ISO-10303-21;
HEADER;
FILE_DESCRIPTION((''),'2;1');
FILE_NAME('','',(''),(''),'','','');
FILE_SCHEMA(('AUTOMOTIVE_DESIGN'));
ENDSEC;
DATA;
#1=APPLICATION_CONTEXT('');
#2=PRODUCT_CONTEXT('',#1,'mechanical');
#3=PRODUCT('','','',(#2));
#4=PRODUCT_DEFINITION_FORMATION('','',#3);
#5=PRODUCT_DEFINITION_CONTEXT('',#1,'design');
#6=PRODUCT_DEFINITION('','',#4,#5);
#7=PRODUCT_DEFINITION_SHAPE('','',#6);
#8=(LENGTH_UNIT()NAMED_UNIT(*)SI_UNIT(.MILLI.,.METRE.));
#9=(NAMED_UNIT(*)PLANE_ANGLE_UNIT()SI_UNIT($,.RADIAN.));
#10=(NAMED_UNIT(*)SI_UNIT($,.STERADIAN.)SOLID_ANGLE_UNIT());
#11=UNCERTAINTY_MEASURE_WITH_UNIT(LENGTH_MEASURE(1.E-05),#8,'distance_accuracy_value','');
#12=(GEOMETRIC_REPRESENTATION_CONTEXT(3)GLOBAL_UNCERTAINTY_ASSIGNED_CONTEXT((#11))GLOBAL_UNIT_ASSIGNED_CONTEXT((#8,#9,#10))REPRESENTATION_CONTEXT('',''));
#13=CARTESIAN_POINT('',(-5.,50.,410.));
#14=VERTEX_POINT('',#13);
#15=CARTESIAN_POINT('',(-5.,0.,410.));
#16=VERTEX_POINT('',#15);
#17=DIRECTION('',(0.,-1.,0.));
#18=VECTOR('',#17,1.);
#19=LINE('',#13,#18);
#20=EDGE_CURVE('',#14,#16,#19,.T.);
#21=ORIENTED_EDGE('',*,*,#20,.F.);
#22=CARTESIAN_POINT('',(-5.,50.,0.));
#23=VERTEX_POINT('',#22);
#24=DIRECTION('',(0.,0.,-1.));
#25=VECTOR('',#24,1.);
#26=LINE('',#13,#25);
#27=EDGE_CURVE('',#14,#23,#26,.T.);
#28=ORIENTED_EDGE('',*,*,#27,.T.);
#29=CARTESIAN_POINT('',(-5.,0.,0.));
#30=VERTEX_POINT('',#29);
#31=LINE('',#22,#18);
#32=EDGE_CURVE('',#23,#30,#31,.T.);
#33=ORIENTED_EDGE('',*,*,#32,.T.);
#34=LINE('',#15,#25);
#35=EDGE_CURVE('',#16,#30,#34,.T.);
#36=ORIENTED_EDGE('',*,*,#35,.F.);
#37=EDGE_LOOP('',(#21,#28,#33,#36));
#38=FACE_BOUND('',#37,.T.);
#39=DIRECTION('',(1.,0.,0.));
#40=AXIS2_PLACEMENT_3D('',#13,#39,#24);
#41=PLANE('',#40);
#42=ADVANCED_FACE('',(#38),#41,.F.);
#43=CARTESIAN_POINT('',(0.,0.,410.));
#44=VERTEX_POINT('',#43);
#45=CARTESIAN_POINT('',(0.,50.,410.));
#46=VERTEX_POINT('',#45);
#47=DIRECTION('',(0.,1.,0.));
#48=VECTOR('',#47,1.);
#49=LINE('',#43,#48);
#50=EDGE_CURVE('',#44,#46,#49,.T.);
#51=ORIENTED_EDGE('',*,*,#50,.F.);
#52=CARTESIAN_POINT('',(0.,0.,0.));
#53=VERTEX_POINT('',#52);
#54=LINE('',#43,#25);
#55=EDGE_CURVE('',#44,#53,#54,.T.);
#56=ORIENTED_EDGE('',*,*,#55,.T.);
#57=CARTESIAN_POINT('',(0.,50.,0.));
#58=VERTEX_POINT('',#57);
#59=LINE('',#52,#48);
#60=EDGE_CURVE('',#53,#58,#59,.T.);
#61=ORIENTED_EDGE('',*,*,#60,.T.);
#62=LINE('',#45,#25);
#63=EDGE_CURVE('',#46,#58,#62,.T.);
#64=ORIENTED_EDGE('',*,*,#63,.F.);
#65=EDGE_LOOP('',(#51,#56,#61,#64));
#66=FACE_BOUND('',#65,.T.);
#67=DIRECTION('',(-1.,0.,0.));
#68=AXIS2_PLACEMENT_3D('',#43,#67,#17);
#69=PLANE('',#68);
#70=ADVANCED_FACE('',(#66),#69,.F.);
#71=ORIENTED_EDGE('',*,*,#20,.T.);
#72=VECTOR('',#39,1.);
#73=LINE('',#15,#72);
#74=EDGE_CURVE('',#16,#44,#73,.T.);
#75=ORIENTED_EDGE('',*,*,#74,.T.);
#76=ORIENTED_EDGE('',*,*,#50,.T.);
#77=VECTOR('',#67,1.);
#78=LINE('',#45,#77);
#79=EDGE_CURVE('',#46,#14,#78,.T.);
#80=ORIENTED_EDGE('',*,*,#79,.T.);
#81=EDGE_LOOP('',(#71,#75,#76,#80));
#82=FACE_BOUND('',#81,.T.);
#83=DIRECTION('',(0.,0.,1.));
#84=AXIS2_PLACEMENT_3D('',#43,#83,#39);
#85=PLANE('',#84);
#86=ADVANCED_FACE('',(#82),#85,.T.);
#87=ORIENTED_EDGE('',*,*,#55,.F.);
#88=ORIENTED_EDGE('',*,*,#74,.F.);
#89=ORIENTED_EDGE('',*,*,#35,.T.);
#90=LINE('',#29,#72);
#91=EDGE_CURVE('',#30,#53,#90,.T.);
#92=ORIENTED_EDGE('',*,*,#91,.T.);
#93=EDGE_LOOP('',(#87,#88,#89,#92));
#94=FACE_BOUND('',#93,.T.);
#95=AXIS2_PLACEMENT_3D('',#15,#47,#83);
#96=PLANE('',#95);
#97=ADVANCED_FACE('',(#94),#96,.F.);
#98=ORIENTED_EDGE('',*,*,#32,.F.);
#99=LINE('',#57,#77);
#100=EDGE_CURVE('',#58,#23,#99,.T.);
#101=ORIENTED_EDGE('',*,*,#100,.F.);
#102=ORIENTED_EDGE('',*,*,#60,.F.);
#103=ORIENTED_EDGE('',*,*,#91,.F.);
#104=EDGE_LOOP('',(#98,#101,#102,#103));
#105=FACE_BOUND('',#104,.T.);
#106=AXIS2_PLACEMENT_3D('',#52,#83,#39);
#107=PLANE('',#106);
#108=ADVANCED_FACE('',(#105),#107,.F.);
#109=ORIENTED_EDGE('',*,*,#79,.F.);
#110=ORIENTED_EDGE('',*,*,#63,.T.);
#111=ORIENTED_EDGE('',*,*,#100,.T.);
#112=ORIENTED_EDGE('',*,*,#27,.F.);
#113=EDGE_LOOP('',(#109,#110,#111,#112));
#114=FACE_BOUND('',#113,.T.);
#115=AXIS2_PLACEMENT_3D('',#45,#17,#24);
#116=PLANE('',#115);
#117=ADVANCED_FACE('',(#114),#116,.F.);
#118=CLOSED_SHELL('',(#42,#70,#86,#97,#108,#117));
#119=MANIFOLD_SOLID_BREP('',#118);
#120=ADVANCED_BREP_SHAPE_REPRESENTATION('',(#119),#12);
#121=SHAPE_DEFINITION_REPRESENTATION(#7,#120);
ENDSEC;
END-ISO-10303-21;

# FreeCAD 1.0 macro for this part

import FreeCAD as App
import Part
import Sketcher
from FreeCAD import Vector

doc = App.newDocument("Part")
body = doc.addObject("PartDesign::Body", "Body")

# Sketch on XY plane
sketch1 = body.newObject("Sketcher::SketchObject", "Sketch")
sketch1.AttachmentSupport = (doc.getObject("XY_Plane"), [""])
sketch1.MapMode = "FlatFace"
sketch1.addGeometry([
    Part.LineSegment(Vector(-5, 50, 0), Vector(-5, 0, 0)),
    Part.LineSegment(Vector(-5, 0, 0), Vector(0, 0, 0)),
    Part.LineSegment(Vector(0, 0, 0), Vector(0, 50, 0)),
    Part.LineSegment(Vector(0, 50, 0), Vector(-5, 50, 0)),
], False)
sketch1.addConstraint([
    Sketcher.Constraint("Coincident", 0, 2, 1, 1),
    Sketcher.Constraint("Coincident", 1, 2, 2, 1),
    Sketcher.Constraint("Coincident", 2, 2, 3, 1),
    Sketcher.Constraint("Coincident", 3, 2, 0, 1),
    Sketcher.Constraint("Vertical", 0),
    Sketcher.Constraint("Horizontal", 1),
    Sketcher.Constraint("Vertical", 2),
    Sketcher.Constraint("Horizontal", 3),
    Sketcher.Constraint("Coincident", 1, 2, -1, 1),
    Sketcher.Constraint("DistanceX", 1, 1, 1, 2, 5.0),
    Sketcher.Constraint("DistanceY", 0, 2, 0, 1, 50.0),
])
pad1 = body.newObject("PartDesign::Pad", "Pad")
pad1.Profile = sketch1
pad1.Length = 410

doc.recompute()
